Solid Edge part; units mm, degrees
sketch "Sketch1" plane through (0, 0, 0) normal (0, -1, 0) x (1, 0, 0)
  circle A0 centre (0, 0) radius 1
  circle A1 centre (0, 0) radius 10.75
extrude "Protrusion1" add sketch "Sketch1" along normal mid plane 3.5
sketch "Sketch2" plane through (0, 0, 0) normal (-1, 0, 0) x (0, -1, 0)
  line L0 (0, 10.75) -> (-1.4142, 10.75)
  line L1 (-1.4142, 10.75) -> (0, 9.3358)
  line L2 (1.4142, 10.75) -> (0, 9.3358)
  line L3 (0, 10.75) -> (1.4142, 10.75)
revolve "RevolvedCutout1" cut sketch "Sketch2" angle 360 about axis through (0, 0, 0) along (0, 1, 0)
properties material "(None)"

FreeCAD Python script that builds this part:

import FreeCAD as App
import Part
import Sketcher
from FreeCAD import Vector

doc = App.newDocument("Part")
body = doc.addObject("PartDesign::Body", "Body")

# Sketch on XZ plane
sketch1 = body.newObject("Sketcher::SketchObject", "Sketch")
sketch1.AttachmentSupport = (doc.getObject("XZ_Plane"), [""])
sketch1.MapMode = "FlatFace"
sketch1.addGeometry([
    Part.Circle(Vector(0, 0, 0), Vector(0, 0, 1), 10.8),
    Part.Circle(Vector(0, 0, 0), Vector(0, 0, 1), 1),
], False)
sketch1.addConstraint([
    Sketcher.Constraint("Coincident", 0, 3, -1, 1),
    Sketcher.Constraint("Coincident", 1, 3, -1, 1),
    Sketcher.Constraint("Diameter", 1, 2.0),
    Sketcher.Constraint("Diameter", 0, 21.5),
])
pad1 = body.newObject("PartDesign::Pad", "Pad")
pad1.Profile = sketch1
pad1.Length = 3.5
pad1.Midplane = True

# Sketch on YZ plane
sketch2 = body.newObject("Sketcher::SketchObject", "Sketch001")
sketch2.AttachmentSupport = (doc.getObject("YZ_Plane"), [""])
sketch2.MapMode = "FlatFace"
sketch2.addGeometry([
    Part.LineSegment(Vector(-1.4, 10.8, 0), Vector(1.4, 10.8, 0)),
    Part.LineSegment(Vector(1.4, 10.8, 0), Vector(0, 9.3, 0)),
    Part.LineSegment(Vector(0, 9.3, 0), Vector(-1.4, 10.8, 0)),
], False)
sketch2.addConstraint([
    Sketcher.Constraint("Coincident", 0, 2, 1, 1),
    Sketcher.Constraint("Coincident", 1, 2, 2, 1),
    Sketcher.Constraint("Coincident", 2, 2, 0, 1),
    Sketcher.Constraint("Horizontal", 0),
    Sketcher.Constraint("PointOnObject", 1, 2, -2),
    Sketcher.Constraint("Perpendicular", 1, 2),
    Sketcher.Constraint("Equal", 1, 2),
    Sketcher.Constraint("Distance", 1, 2.0),
    Sketcher.Constraint("DistanceY", -1, 1, 0, 2, 10.75),
])
groove = body.newObject("PartDesign::Groove", "Groove")
groove.Profile = sketch2
groove.ReferenceAxis = (sketch2, ["H_Axis"])
groove.Angle = 360

doc.recompute()
